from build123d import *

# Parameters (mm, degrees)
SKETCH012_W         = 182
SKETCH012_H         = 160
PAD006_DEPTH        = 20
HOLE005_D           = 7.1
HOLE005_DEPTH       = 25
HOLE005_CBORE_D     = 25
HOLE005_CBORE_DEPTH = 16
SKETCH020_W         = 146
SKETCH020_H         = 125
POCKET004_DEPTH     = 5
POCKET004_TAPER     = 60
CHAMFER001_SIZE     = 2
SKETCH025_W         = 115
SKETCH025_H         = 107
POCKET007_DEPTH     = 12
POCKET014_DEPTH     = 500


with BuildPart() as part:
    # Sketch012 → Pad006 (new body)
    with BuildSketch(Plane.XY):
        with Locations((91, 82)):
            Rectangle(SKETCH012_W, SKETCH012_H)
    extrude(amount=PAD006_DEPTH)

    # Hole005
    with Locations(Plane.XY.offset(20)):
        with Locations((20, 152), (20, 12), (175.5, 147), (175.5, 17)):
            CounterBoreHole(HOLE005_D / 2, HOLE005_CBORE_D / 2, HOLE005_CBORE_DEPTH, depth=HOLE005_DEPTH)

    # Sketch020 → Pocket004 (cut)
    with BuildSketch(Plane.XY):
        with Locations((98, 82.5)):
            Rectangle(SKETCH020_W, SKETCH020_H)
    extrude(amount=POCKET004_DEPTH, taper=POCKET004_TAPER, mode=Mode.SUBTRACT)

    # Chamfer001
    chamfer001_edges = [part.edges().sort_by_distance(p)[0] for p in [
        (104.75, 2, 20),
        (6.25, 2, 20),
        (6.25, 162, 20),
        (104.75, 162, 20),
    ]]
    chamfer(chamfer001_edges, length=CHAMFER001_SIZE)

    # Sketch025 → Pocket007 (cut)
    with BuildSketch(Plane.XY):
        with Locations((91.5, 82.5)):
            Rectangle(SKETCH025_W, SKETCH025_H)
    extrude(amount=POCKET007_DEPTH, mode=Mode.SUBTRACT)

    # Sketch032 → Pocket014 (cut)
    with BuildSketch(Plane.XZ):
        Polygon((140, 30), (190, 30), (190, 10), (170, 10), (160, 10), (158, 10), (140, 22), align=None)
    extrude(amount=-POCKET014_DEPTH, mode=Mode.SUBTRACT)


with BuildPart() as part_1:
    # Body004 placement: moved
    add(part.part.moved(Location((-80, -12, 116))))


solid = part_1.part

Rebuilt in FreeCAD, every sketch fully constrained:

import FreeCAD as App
import Part
import Sketcher
from FreeCAD import Vector


def edges_at(feature, points):
    """Names of the edges that pass closest to the given points."""
    edges = feature.Shape.Edges
    near = lambda p: min(range(len(edges)), key=lambda i: edges[i].distToShape(Part.Vertex(*p))[0])
    return sorted({f"Edge{near(p) + 1}" for p in points})


def add_polygon(sketch, points):
    """Adds a closed chain of lines whose ends are joined by coincident constraints."""
    first, n = sketch.GeometryCount, len(points)
    for a, b in zip(points, points[1:] + points[:1]):
        sketch.addGeometry(Part.LineSegment(App.Vector(*a, 0), App.Vector(*b, 0)), False)
    for i in range(n):
        sketch.addConstraint(Sketcher.Constraint("Coincident", first + i, 2, first + (i + 1) % n, 1))

doc = App.newDocument("Part")
body = doc.addObject("PartDesign::Body", "Body")

# Sketch on XY plane
sketch1 = body.newObject("Sketcher::SketchObject", "Sketch")
sketch1.AttachmentSupport = (doc.getObject("XY_Plane"), [""])
sketch1.MapMode = "FlatFace"
add_polygon(sketch1, [(0, 162), (0, 2), (182, 2), (182, 162)])  # lines 0-3
sketch1.addConstraint([
    Sketcher.Constraint("Vertical", 0),
    Sketcher.Constraint("Horizontal", 1),
    Sketcher.Constraint("Vertical", 2),
    Sketcher.Constraint("Horizontal", 3),
    Sketcher.Constraint("PointOnObject", 0, 2, -2),
    Sketcher.Constraint("DistanceX", 1, 1, 1, 2, 182.0),
    Sketcher.Constraint("DistanceY", 0, 2, 0, 1, 160.0),
    Sketcher.Constraint("DistanceY", -1, 1, 0, 2, 2.0),
])
pad1 = body.newObject("PartDesign::Pad", "Pad")
pad1.Profile = sketch1
pad1.Length = 20

# Sketch on XY plane
sketch2 = body.newObject("Sketcher::SketchObject", "Sketch001")
sketch2.AttachmentSupport = (doc.getObject("XY_Plane"), [""])
sketch2.MapMode = "FlatFace"
sketch2.AttachmentOffset = App.Placement(Vector(0, 0, 20), App.Rotation())
sketch2.addGeometry([
    Part.Circle(Vector(20, 152, 0), Vector(0, 0, 1), 3.5),
    Part.Circle(Vector(20, 12, 0), Vector(0, 0, 1), 3.5),
    Part.Circle(Vector(175.5, 147, 0), Vector(0, 0, 1), 3.5),
    Part.Circle(Vector(175.5, 17, 0), Vector(0, 0, 1), 3.5),
], False)
sketch2.addConstraint([
    Sketcher.Constraint("Equal", 0, 1),
    Sketcher.Constraint("Equal", 1, 2),
    Sketcher.Constraint("Equal", 2, 3),
    Sketcher.Constraint("Vertical", 0, 3, 1, 3),
    Sketcher.Constraint("Vertical", 2, 3, 3, 3),
    Sketcher.Constraint("Diameter", 0, 7.1),
    Sketcher.Constraint("DistanceX", -1, 1, 0, 3, 20.0),
    Sketcher.Constraint("DistanceY", -1, 1, 0, 3, 152.0),
    Sketcher.Constraint("DistanceY", -1, 1, 1, 3, 12.0),
    Sketcher.Constraint("DistanceY", -1, 1, 2, 3, 147.0),
    Sketcher.Constraint("DistanceY", -1, 1, 3, 3, 17.0),
    Sketcher.Constraint("DistanceX", -1, 1, 2, 3, 175.5),
])
doc.recompute()
hole = body.newObject("PartDesign::Hole", "Hole")
hole.Profile = sketch2
hole.ThreadType = "None"
hole.Diameter = 7.1
hole.DepthType = "Dimension"
hole.Depth = 25
hole.DrillPoint = "Flat"
hole.HoleCutType = "Counterbore"
hole.HoleCutDiameter = 25
hole.HoleCutDepth = 16

# Sketch on XY plane
sketch3 = body.newObject("Sketcher::SketchObject", "Sketch002")
sketch3.AttachmentSupport = (doc.getObject("XY_Plane"), [""])
sketch3.MapMode = "FlatFace"
add_polygon(sketch3, [(25, 145), (25, 20), (171, 20), (171, 145)])  # lines 0-3
sketch3.addConstraint([
    Sketcher.Constraint("Vertical", 0),
    Sketcher.Constraint("Horizontal", 1),
    Sketcher.Constraint("Vertical", 2),
    Sketcher.Constraint("Horizontal", 3),
    Sketcher.Constraint("DistanceX", 1, 1, 1, 2, 146.0),
    Sketcher.Constraint("DistanceY", 0, 2, 0, 1, 125.0),
    Sketcher.Constraint("DistanceX", -1, 1, 0, 2, 25.0),
    Sketcher.Constraint("DistanceY", -1, 1, 0, 2, 20.0),
])
pocket1 = body.newObject("PartDesign::Pocket", "Pocket")
pocket1.Profile = sketch3
pocket1.Length = 5
pocket1.Reversed = True
pocket1.TaperAngle = -60
doc.recompute()

chamfer = body.newObject("PartDesign::Chamfer", "Chamfer")
chamfer.Base = (pocket1, edges_at(pocket1, [
    (104.75, 2, 20),
    (6.25, 2, 20),
    (6.25, 162, 20),
    (104.75, 162, 20),
]))
chamfer.Size = 2

# Sketch on XY plane
sketch4 = body.newObject("Sketcher::SketchObject", "Sketch003")
sketch4.AttachmentSupport = (doc.getObject("XY_Plane"), [""])
sketch4.MapMode = "FlatFace"
add_polygon(sketch4, [(34, 136), (34, 29), (149, 29), (149, 136)])  # lines 0-3
sketch4.addConstraint([
    Sketcher.Constraint("Vertical", 0),
    Sketcher.Constraint("Horizontal", 1),
    Sketcher.Constraint("Vertical", 2),
    Sketcher.Constraint("Horizontal", 3),
    Sketcher.Constraint("DistanceX", 1, 1, 1, 2, 115.0),
    Sketcher.Constraint("DistanceY", 0, 2, 0, 1, 107.0),
    Sketcher.Constraint("DistanceX", -1, 1, 0, 2, 34.0),
    Sketcher.Constraint("DistanceY", -1, 1, 0, 2, 29.0),
])
pocket2 = body.newObject("PartDesign::Pocket", "Pocket001")
pocket2.Profile = sketch4
pocket2.Length = 12
pocket2.Reversed = True

# Sketch on XZ plane
sketch5 = body.newObject("Sketcher::SketchObject", "Sketch004")
sketch5.AttachmentSupport = (doc.getObject("XZ_Plane"), [""])
sketch5.MapMode = "FlatFace"
add_polygon(sketch5, [(190, 30), (140, 30), (140, 22), (158, 10), (190, 10)])  # lines 0-4
sketch5.addConstraint([
    Sketcher.Constraint("Horizontal", 0),
    Sketcher.Constraint("Vertical", 1),
    Sketcher.Constraint("Horizontal", 3),
    Sketcher.Constraint("Vertical", 4),
    Sketcher.Constraint("DistanceX", 0, 2, 0, 1, 50.0),
    Sketcher.Constraint("DistanceX", 3, 1, 3, 2, 32.0),
    Sketcher.Constraint("DistanceY", 1, 2, 1, 1, 8.0),
    Sketcher.Constraint("DistanceY", 4, 1, 4, 2, 20.0),
    Sketcher.Constraint("DistanceX", -1, 1, 0, 2, 140.0),
    Sketcher.Constraint("DistanceY", -1, 1, 0, 2, 30.0),
])
pocket3 = body.newObject("PartDesign::Pocket", "Pocket002")
pocket3.Profile = sketch5
pocket3.Length = 500
body2 = doc.addObject("PartDesign::Body", "Body001")
doc.recompute()

body.Placement = App.Placement(Vector(-80, -12, 116), App.Rotation(Vector(0, 0, 1), 0))
boolean = body2.newObject("PartDesign::Boolean", "Boolean")
boolean.Type = "Fuse"
boolean.addObjects([body])

doc.recompute()
